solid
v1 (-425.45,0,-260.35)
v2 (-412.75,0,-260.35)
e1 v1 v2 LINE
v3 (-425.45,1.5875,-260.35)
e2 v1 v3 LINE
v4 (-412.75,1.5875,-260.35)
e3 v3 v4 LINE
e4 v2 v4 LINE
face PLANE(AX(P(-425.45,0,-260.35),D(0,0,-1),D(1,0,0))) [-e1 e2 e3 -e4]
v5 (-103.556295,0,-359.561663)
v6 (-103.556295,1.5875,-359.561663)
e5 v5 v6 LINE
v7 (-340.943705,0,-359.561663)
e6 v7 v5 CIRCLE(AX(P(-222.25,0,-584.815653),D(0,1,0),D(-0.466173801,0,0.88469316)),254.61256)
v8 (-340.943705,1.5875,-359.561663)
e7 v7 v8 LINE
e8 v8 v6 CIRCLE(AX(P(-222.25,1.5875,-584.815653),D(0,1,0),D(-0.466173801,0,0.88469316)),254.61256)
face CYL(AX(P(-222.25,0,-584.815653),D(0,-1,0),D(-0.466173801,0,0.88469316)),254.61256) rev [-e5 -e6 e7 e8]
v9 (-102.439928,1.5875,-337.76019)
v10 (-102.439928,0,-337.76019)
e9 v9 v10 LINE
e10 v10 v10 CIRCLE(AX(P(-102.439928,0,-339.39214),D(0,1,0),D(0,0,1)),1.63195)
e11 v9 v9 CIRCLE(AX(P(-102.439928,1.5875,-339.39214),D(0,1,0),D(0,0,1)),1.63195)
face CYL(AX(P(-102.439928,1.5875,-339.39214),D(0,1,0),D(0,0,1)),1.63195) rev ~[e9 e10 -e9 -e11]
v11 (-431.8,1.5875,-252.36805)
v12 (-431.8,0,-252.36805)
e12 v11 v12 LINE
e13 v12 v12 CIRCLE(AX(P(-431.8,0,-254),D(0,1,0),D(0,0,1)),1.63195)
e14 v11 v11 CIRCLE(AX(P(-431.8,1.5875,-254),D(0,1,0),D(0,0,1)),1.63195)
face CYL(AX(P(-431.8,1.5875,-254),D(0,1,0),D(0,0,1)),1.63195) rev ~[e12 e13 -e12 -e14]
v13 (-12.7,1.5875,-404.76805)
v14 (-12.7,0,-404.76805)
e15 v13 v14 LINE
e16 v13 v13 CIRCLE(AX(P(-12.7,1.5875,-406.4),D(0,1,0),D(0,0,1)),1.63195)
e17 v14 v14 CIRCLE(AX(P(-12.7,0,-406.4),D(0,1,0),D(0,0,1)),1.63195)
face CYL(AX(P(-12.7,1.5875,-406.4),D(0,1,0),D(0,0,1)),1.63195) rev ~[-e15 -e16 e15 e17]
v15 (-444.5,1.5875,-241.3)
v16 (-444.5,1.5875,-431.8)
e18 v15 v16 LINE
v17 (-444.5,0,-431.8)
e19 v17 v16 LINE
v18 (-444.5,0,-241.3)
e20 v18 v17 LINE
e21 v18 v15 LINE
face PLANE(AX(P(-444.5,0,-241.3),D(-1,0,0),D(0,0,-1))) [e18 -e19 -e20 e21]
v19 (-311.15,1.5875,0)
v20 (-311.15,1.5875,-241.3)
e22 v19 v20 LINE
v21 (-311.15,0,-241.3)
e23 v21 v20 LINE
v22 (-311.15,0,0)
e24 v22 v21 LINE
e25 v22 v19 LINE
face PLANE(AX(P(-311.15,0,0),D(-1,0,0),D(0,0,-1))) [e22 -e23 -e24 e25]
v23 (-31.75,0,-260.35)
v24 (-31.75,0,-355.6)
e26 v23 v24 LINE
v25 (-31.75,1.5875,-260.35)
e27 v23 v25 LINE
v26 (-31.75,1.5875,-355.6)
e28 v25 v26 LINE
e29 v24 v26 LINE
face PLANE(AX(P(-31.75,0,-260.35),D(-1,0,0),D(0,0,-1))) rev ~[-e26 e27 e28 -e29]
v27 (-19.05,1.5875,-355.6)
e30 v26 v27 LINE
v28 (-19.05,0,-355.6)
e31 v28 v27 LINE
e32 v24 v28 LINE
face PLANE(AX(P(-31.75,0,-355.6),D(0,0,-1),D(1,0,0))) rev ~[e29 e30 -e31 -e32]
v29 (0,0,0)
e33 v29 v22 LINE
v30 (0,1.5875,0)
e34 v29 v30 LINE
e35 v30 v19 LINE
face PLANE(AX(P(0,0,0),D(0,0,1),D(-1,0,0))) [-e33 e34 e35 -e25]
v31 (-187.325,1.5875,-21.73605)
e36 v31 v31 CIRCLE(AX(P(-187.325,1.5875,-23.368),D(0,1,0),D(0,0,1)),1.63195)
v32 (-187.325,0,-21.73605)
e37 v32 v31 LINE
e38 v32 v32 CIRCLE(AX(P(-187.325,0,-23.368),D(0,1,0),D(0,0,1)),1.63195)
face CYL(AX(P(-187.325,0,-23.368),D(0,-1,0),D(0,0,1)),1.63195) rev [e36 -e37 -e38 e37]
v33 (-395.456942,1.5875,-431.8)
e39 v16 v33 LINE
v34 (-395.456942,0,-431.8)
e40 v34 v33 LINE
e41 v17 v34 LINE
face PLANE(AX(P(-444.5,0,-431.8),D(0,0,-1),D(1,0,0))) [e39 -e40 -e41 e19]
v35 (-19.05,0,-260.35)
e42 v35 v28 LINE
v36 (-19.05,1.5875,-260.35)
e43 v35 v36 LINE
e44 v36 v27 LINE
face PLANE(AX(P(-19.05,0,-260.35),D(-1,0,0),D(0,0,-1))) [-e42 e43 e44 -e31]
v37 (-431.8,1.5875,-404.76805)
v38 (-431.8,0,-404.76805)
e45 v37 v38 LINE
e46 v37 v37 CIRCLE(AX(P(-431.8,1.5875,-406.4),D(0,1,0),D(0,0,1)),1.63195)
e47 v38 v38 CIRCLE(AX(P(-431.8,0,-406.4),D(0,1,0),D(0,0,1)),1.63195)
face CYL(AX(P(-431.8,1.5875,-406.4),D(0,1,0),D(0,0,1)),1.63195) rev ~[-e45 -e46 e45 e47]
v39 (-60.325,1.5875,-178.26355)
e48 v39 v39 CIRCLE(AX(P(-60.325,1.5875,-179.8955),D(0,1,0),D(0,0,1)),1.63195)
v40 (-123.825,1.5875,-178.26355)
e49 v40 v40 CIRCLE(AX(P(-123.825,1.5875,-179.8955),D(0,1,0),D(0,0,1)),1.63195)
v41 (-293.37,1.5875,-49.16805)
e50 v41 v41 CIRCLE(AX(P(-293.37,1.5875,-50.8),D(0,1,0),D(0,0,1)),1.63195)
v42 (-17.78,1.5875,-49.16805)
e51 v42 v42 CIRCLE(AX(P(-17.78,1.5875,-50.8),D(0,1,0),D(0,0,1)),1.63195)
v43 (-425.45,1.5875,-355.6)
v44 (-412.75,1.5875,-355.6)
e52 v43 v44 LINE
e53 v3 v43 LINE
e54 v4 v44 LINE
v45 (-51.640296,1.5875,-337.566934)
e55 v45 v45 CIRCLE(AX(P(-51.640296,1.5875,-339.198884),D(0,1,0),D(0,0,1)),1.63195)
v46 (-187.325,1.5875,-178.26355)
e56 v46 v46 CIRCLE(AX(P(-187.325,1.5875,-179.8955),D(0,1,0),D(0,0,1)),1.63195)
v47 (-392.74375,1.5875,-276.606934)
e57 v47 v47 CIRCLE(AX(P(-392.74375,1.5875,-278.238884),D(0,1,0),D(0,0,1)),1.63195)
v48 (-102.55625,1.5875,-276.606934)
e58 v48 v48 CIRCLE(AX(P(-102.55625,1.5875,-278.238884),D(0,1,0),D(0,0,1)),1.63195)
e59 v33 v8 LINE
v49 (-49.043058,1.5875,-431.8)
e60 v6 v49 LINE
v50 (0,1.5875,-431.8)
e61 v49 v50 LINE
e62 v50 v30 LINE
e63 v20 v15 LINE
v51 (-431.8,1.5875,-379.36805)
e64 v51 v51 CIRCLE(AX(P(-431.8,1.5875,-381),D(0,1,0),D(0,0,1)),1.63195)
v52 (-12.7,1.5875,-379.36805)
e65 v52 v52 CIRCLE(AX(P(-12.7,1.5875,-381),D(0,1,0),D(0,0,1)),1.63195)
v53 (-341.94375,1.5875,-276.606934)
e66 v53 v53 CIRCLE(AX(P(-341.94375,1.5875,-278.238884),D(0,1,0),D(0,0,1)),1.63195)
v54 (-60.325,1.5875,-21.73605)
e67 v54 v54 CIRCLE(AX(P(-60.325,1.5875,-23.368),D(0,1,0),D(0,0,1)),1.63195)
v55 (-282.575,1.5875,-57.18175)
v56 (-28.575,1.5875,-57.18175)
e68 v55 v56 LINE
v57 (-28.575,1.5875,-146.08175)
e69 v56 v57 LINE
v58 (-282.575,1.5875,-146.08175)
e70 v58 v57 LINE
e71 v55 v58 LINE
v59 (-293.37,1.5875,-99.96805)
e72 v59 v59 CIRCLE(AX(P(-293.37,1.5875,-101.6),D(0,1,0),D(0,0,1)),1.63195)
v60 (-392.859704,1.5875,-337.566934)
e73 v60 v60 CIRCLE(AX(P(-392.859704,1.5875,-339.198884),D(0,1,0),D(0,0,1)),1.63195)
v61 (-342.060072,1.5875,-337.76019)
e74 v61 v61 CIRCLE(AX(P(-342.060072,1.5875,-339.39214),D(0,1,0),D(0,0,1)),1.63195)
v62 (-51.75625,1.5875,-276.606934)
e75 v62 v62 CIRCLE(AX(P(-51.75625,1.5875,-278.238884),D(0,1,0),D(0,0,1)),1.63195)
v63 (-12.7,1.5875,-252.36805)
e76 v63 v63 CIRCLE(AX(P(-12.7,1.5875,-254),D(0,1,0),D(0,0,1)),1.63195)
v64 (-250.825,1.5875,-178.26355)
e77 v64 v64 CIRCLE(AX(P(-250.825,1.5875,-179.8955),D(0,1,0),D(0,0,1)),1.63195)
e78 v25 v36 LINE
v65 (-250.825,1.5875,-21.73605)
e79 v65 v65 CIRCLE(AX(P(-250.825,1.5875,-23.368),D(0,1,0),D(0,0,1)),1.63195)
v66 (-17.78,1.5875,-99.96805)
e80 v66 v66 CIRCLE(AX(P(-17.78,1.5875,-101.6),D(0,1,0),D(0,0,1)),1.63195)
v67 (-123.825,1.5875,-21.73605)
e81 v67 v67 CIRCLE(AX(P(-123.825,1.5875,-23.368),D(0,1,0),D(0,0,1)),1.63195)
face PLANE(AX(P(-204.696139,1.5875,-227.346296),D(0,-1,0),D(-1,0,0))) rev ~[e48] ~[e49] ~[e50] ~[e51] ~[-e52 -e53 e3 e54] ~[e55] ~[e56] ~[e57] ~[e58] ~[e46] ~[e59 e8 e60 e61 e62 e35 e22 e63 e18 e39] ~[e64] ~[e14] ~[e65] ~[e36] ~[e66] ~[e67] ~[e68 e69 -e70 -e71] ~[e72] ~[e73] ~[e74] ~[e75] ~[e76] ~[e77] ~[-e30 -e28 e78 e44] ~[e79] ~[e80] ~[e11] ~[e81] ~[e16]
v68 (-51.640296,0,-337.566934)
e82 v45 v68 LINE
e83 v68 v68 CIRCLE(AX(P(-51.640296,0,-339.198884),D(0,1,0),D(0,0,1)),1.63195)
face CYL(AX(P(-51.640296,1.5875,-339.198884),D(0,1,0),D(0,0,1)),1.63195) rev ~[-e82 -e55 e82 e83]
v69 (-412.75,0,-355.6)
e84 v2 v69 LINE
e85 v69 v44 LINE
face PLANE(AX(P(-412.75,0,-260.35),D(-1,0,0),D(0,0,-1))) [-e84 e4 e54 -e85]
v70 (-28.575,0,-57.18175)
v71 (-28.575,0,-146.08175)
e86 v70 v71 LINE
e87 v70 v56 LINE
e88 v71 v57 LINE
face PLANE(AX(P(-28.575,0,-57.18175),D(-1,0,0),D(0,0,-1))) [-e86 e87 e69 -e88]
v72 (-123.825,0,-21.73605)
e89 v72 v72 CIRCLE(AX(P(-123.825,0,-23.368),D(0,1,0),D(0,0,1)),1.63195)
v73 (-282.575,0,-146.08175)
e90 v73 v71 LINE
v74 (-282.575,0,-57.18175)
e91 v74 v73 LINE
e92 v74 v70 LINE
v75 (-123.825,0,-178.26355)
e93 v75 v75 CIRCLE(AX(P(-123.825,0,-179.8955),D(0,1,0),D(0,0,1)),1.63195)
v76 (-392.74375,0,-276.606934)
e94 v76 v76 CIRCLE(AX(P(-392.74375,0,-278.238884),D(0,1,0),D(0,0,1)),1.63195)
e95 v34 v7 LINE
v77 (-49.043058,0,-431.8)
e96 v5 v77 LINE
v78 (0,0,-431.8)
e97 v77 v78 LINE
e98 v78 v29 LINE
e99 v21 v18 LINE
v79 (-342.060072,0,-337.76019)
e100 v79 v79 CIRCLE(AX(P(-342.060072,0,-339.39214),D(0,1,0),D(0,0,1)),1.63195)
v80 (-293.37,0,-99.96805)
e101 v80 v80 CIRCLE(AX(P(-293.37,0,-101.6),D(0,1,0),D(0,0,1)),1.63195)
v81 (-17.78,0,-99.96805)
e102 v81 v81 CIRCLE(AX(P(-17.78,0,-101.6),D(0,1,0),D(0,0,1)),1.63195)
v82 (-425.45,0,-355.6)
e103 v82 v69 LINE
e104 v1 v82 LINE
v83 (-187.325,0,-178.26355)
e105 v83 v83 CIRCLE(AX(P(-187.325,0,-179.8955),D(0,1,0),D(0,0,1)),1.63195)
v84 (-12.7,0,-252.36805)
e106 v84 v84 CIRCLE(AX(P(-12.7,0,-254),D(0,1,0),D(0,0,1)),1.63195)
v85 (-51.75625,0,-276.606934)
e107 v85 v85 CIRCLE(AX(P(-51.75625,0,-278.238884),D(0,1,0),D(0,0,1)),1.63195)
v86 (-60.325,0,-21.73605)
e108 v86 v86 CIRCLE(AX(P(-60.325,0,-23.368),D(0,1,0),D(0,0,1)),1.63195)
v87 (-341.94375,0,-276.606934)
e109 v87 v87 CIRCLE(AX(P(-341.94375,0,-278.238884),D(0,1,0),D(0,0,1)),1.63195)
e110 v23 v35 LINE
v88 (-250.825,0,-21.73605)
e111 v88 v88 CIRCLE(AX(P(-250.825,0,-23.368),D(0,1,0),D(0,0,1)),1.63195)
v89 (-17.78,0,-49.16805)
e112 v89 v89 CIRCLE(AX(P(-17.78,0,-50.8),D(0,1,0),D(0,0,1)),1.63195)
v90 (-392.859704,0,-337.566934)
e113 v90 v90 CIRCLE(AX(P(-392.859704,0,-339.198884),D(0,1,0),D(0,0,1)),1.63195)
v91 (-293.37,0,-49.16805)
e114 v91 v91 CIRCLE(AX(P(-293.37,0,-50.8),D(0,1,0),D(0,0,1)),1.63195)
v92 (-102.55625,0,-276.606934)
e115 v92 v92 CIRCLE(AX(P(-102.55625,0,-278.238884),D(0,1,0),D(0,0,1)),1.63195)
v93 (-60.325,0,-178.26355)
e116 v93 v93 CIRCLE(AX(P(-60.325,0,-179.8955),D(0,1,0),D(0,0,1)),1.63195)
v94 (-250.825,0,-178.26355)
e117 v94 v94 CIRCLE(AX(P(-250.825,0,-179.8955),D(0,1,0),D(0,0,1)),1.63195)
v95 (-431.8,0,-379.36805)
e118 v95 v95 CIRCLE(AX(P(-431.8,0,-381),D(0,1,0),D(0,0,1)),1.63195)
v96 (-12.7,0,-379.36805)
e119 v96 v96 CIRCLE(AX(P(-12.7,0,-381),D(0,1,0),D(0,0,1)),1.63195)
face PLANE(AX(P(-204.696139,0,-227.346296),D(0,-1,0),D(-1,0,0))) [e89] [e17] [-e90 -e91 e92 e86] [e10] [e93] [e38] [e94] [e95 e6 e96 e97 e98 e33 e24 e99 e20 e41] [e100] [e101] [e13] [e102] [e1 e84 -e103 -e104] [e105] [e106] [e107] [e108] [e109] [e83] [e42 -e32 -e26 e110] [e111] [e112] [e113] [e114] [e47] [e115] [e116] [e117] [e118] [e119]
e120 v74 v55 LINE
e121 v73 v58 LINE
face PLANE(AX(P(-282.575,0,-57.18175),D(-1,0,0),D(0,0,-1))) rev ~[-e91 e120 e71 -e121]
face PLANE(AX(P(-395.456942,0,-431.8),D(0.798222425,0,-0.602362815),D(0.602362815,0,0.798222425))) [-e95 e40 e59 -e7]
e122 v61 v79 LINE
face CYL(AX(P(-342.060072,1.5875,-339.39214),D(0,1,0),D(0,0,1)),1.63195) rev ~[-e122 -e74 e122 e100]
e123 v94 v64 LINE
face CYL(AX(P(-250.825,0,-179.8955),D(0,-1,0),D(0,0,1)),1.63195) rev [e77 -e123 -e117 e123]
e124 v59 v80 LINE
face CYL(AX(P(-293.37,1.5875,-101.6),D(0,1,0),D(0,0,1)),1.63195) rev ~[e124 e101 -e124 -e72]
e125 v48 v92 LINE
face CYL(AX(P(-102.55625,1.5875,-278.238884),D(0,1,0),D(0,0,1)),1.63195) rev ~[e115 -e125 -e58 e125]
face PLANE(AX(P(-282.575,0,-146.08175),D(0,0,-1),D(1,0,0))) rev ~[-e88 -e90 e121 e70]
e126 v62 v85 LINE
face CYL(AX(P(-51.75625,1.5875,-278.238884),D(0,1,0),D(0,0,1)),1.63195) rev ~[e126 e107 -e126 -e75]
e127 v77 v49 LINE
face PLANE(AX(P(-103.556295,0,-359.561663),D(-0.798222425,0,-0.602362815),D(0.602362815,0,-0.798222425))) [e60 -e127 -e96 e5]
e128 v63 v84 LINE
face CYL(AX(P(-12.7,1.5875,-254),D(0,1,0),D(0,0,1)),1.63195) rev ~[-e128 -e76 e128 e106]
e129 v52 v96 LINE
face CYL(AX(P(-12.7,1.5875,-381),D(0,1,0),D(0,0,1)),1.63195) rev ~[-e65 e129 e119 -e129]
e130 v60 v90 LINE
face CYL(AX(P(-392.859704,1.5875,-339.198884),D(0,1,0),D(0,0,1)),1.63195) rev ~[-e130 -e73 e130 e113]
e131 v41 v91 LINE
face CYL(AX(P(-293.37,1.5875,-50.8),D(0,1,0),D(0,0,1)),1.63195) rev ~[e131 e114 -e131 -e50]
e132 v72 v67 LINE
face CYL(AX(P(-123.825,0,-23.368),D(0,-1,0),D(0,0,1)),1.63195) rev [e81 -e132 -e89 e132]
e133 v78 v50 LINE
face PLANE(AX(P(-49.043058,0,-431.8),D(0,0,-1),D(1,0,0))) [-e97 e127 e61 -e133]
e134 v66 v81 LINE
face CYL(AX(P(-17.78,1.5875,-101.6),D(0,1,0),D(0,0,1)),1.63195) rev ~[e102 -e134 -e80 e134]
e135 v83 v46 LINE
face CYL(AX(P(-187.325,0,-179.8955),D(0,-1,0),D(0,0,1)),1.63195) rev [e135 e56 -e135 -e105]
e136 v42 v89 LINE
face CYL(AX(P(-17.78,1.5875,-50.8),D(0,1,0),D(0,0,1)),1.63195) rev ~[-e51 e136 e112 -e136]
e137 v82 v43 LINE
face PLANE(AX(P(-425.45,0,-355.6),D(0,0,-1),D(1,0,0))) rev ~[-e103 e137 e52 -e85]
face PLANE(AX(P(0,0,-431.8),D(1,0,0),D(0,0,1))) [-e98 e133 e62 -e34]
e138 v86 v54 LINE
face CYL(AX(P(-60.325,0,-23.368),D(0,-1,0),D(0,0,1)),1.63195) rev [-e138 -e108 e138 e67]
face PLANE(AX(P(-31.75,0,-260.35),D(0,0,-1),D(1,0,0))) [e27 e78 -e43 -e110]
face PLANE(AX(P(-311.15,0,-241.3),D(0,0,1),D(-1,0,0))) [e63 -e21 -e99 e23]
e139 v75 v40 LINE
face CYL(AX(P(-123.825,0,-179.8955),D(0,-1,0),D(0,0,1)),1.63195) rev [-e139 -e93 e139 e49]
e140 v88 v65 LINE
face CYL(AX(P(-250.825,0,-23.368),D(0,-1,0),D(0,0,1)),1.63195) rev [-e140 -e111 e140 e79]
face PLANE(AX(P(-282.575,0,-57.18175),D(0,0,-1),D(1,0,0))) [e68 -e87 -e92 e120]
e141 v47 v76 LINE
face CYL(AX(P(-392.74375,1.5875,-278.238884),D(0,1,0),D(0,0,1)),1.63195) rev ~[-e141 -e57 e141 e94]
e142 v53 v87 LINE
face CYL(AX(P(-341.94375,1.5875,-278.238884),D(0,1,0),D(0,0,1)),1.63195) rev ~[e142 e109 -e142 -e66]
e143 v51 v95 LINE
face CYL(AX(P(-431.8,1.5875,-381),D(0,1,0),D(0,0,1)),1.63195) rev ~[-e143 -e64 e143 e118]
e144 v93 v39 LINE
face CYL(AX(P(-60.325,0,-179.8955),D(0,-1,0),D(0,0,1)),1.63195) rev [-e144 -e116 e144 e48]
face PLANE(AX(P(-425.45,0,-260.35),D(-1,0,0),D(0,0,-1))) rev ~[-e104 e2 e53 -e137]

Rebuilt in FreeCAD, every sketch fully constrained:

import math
import FreeCAD as App
import Part
import Sketcher
Q = App.Units.Quantity

doc = App.newDocument("Part")
params = doc.addObject("Spreadsheet::Sheet", "Params")
for row, (alias, value) in enumerate([
    ("sketch1_width", "10 in"),
    ("sketch1_height", "17 in"),
    ("sketch1_width2", "0.5 in"),
    ("sketch1_height2", "7.5 in"),
    ("sketch1_height3", "3.5 in"),
    ("pad1_length", "0.0625 in"),
], start=1):
    params.set(f"A{row}", alias)
    params.set(f"B{row}", "=" + value)
    params.setAlias(f"B{row}", alias)

body = doc.addObject("PartDesign::Body", "Body")

sketch1 = body.newObject("Sketcher::SketchObject", "Sketch")
sketch1.AttachmentSupport = (doc.getObject("XZ_Plane"), [""])
sketch1.MapMode = "FlatFace"
sketch1.addGeometry([
    Part.LineSegment(App.Vector(-395.456942, -431.8, 0), App.Vector(-444.5, -431.8, 0)),
    Part.LineSegment(App.Vector(-444.5, -431.8, 0), App.Vector(-444.5, -241.3, 0)),
    Part.LineSegment(App.Vector(-444.5, -241.3, 0), App.Vector(-311.15, -241.3, 0)),
    Part.LineSegment(App.Vector(-311.15, -241.3, 0), App.Vector(-311.15, 0, 0)),
    Part.LineSegment(App.Vector(-311.15, 0, 0), App.Vector(0, 0, 0)),
    Part.LineSegment(App.Vector(0, 0, 0), App.Vector(0, -431.8, 0)),
    Part.LineSegment(App.Vector(0, -431.8, 0), App.Vector(-49.043058, -431.8, 0)),
    Part.LineSegment(App.Vector(-49.043058, -431.8, 0), App.Vector(-103.556295, -359.561663, 0)),
    Part.ArcOfCircle(Part.Circle(App.Vector(-222.25, -584.815653, 0), App.Vector(0, 0, 1), 254.61256), math.radians(62.213785), math.radians(117.786215)),
    Part.LineSegment(App.Vector(-340.943705, -359.561663, 0), App.Vector(-395.456942, -431.8, 0)),
    Part.Circle(App.Vector(-60.325, -23.368, 0), App.Vector(0, 0, 1), 1.63195),
    Part.Circle(App.Vector(-123.825, -23.368, 0), App.Vector(0, 0, 1), 1.63195),
    Part.Circle(App.Vector(-187.325, -23.368, 0), App.Vector(0, 0, 1), 1.63195),
    Part.LineSegment(App.Vector(-282.575, -57.18175, 0), App.Vector(-282.575, -146.08175, 0)),
    Part.LineSegment(App.Vector(-282.575, -146.08175, 0), App.Vector(-28.575, -146.08175, 0)),
    Part.LineSegment(App.Vector(-28.575, -146.08175, 0), App.Vector(-28.575, -57.18175, 0)),
    Part.LineSegment(App.Vector(-28.575, -57.18175, 0), App.Vector(-282.575, -57.18175, 0)),
    Part.Circle(App.Vector(-60.325, -179.8955, 0), App.Vector(0, 0, 1), 1.63195),
    Part.Circle(App.Vector(-123.825, -179.8955, 0), App.Vector(0, 0, 1), 1.63195),
    Part.Circle(App.Vector(-187.325, -179.8955, 0), App.Vector(0, 0, 1), 1.63195),
    Part.Circle(App.Vector(-250.825, -23.368, 0), App.Vector(0, 0, 1), 1.63195),
    Part.Circle(App.Vector(-250.825, -179.8955, 0), App.Vector(0, 0, 1), 1.63195),
    Part.LineSegment(App.Vector(-31.75, -260.35, 0), App.Vector(-31.75, -355.6, 0)),
    Part.LineSegment(App.Vector(-31.75, -355.6, 0), App.Vector(-19.05, -355.6, 0)),
    Part.LineSegment(App.Vector(-19.05, -355.6, 0), App.Vector(-19.05, -260.35, 0)),
    Part.LineSegment(App.Vector(-19.05, -260.35, 0), App.Vector(-31.75, -260.35, 0)),
    Part.LineSegment(App.Vector(-425.45, -260.35, 0), App.Vector(-425.45, -355.6, 0)),
    Part.LineSegment(App.Vector(-425.45, -355.6, 0), App.Vector(-412.75, -355.6, 0)),
    Part.LineSegment(App.Vector(-412.75, -355.6, 0), App.Vector(-412.75, -260.35, 0)),
    Part.LineSegment(App.Vector(-412.75, -260.35, 0), App.Vector(-425.45, -260.35, 0)),
], False)
sketch1.addConstraint([
    Sketcher.Constraint("Coincident", 0, 2, 1, 1),
    Sketcher.Constraint("Coincident", 1, 2, 2, 1),
    Sketcher.Constraint("Coincident", 2, 2, 3, 1),
    Sketcher.Constraint("Coincident", 3, 2, 4, 1),
    Sketcher.Constraint("Coincident", 4, 2, 5, 1),
    Sketcher.Constraint("Coincident", 5, 2, 6, 1),
    Sketcher.Constraint("Coincident", 6, 2, 7, 1),
    Sketcher.Constraint("Coincident", 7, 2, 8, 1),
    Sketcher.Constraint("Coincident", 8, 2, 9, 1),
    Sketcher.Constraint("Coincident", 9, 2, 0, 1),
    Sketcher.Constraint("Coincident", 13, 2, 14, 1),
    Sketcher.Constraint("Coincident", 14, 2, 15, 1),
    Sketcher.Constraint("Coincident", 15, 2, 16, 1),
    Sketcher.Constraint("Coincident", 16, 2, 13, 1),
    Sketcher.Constraint("Coincident", 22, 2, 23, 1),
    Sketcher.Constraint("Coincident", 23, 2, 24, 1),
    Sketcher.Constraint("Coincident", 24, 2, 25, 1),
    Sketcher.Constraint("Coincident", 25, 2, 22, 1),
    Sketcher.Constraint("Coincident", 26, 2, 27, 1),
    Sketcher.Constraint("Coincident", 27, 2, 28, 1),
    Sketcher.Constraint("Coincident", 28, 2, 29, 1),
    Sketcher.Constraint("Coincident", 29, 2, 26, 1),
    Sketcher.Constraint("Horizontal", 0),
    Sketcher.Constraint("Vertical", 1),
    Sketcher.Constraint("Horizontal", 2),
    Sketcher.Constraint("Vertical", 3),
    Sketcher.Constraint("Horizontal", 4),
    Sketcher.Constraint("Vertical", 5),
    Sketcher.Constraint("Horizontal", 6),
    Sketcher.Constraint("Vertical", 13),
    Sketcher.Constraint("Horizontal", 14),
    Sketcher.Constraint("Vertical", 15),
    Sketcher.Constraint("Horizontal", 16),
    Sketcher.Constraint("Vertical", 22),
    Sketcher.Constraint("Horizontal", 23),
    Sketcher.Constraint("Vertical", 24),
    Sketcher.Constraint("Horizontal", 25),
    Sketcher.Constraint("Vertical", 26),
    Sketcher.Constraint("Horizontal", 27),
    Sketcher.Constraint("Vertical", 28),
    Sketcher.Constraint("Horizontal", 29),
    Sketcher.Constraint("Coincident", 4, 2, -1, 1),
    Sketcher.Constraint("Equal", 10, 11),
    Sketcher.Constraint("Equal", 11, 12),
    Sketcher.Constraint("Equal", 12, 17),
    Sketcher.Constraint("Equal", 17, 18),
    Sketcher.Constraint("Equal", 18, 19),
    Sketcher.Constraint("Equal", 19, 20),
    Sketcher.Constraint("Equal", 20, 21),
    Sketcher.Constraint("Horizontal", 10, 3, 11, 3),
    Sketcher.Constraint("Horizontal", 11, 3, 12, 3),
    Sketcher.Constraint("Horizontal", 17, 3, 18, 3),
    Sketcher.Constraint("Horizontal", 18, 3, 19, 3),
    Sketcher.Constraint("Horizontal", 12, 3, 20, 3),
    Sketcher.Constraint("Horizontal", 19, 3, 21, 3),
    Sketcher.Constraint("Horizontal", 0, 2, 5, 2),
    Sketcher.Constraint("Horizontal", 7, 2, 8, 2),
    Sketcher.Constraint("Horizontal", 23, 2, 26, 2),
    Sketcher.Constraint("Horizontal", 25, 2, 28, 2),
    Sketcher.Constraint("Vertical", 10, 3, 17, 3),
    Sketcher.Constraint("Vertical", 11, 3, 18, 3),
    Sketcher.Constraint("Vertical", 12, 3, 19, 3),
    Sketcher.Constraint("Vertical", 20, 3, 21, 3),
    Sketcher.Constraint("Equal", 0, 6),
    Sketcher.Constraint("Equal", 25, 27),
    Sketcher.Constraint("Equal", 7, 9),
    Sketcher.Constraint("DistanceX", 14, 1, 14, 2, Q("10 in")),
    Sketcher.Constraint("DistanceY", 5, 2, 5, 1, Q("17 in")),
    Sketcher.Constraint("DistanceX", 23, 1, 23, 2, Q("0.5 in")),
    Sketcher.Constraint("DistanceY", 1, 1, 1, 2, Q("7.5 in")),
    Sketcher.Constraint("DistanceY", 13, 2, 13, 1, Q("3.5 in")),
    Sketcher.Constraint("DistanceY", 22, 2, -1, 1, Q("14 in")),
    Sketcher.Constraint("DistanceX", 12, 3, 10, 3, Q("5 in")),
    Sketcher.Constraint("DistanceX", 20, 3, 11, 3, Q("5 in")),
    Sketcher.Constraint("DistanceX", 28, 2, 2, 2, Q("4 in")),
    Sketcher.Constraint("Diameter", 10, Q("0.1285 in")),
    Sketcher.Constraint("DistanceX", 2, 1, 2, 2, Q("5.25 in")),
    Sketcher.Constraint("DistanceX", 4, 1, 4, 2, Q("12.25 in")),
    Sketcher.Constraint("DistanceY", 22, 2, 22, 1, Q("3.75 in")),
    Sketcher.Constraint("DistanceX", 11, 3, 10, 3, Q("2.5 in")),
    Sketcher.Constraint("DistanceY", 10, 3, -1, 1, Q("0.92 in")),
    Sketcher.Constraint("DistanceX", 22, 2, -1, 1, Q("1.25 in")),
    Sketcher.Constraint("DistanceX", 13, 2, 21, 3, Q("1.25 in")),
    Sketcher.Constraint("DistanceX", 10, 3, -1, 1, Q("2.375 in")),
    Sketcher.Constraint("Radius", 8, Q("254.61256 mm")),
    Sketcher.Constraint("DistanceY", 17, 3, -1, 1, Q("7.0825 in")),
    Sketcher.Constraint("DistanceX", 0, 2, 0, 1, Q("49.043058 mm")),
    Sketcher.Constraint("DistanceY", 13, 2, -1, 1, Q("146.08175 mm")),
    Sketcher.Constraint("Distance", 7, Q("90.499008 mm")),
    Sketcher.Constraint("DistanceY", 8, 3, -1, 1, Q("584.815653 mm")),
])
sketch1.setExpression("Constraints[66]", "Params.sketch1_width")
sketch1.setExpression("Constraints[67]", "Params.sketch1_height")
sketch1.setExpression("Constraints[68]", "Params.sketch1_width2")
sketch1.setExpression("Constraints[69]", "Params.sketch1_height2")
sketch1.setExpression("Constraints[70]", "Params.sketch1_height3")
pad1 = body.newObject("PartDesign::Pad", "Pad")
pad1.Profile = sketch1
pad1.setExpression("Length", "Params.pad1_length")
pad1.Reversed = True

sketch2 = body.newObject("Sketcher::SketchObject", "Sketch001")
sketch2.AttachmentSupport = (doc.getObject("XZ_Plane"), [""])
sketch2.MapMode = "FlatFace"
sketch2.AttachmentOffset = App.Placement(App.Vector(0, 0, -0.0625 * 25.4), App.Rotation())
sketch2.addGeometry(Part.Circle(App.Vector(-293.37, -101.6, 0), App.Vector(0, 0, 1), 1.63195), False)
sketch2.addConstraint([
    Sketcher.Constraint("DistanceY", 0, 3, -1, 1, Q("4 in")),
    Sketcher.Constraint("Diameter", 0, Q("0.1285 in")),
    Sketcher.Constraint("DistanceX", 0, 3, -1, 1, Q("11.55 in")),
])
pocket1 = body.newObject("PartDesign::Pocket", "Pocket")
pocket1.Profile = sketch2
pocket1.Type = "UpToFirst"
pocket1.Reversed = True

sketch3 = body.newObject("Sketcher::SketchObject", "Sketch002")
sketch3.AttachmentSupport = (doc.getObject("XZ_Plane"), [""])
sketch3.MapMode = "FlatFace"
sketch3.AttachmentOffset = App.Placement(App.Vector(0, 0, -0.0625 * 25.4), App.Rotation())
sketch3.addGeometry(Part.Circle(App.Vector(-293.37, -50.8, 0), App.Vector(0, 0, 1), 1.63195), False)
sketch3.addConstraint([
    Sketcher.Constraint("DistanceY", 0, 3, -1, 1, Q("2 in")),
    Sketcher.Constraint("Diameter", 0, Q("0.1285 in")),
    Sketcher.Constraint("DistanceX", 0, 3, -1, 1, Q("11.55 in")),
])
pocket2 = body.newObject("PartDesign::Pocket", "Pocket001")
pocket2.Profile = sketch3
pocket2.Type = "UpToFirst"
pocket2.Reversed = True

sketch4 = body.newObject("Sketcher::SketchObject", "Sketch003")
sketch4.AttachmentSupport = (doc.getObject("XZ_Plane"), [""])
sketch4.MapMode = "FlatFace"
sketch4.AttachmentOffset = App.Placement(App.Vector(0, 0, -0.0625 * 25.4), App.Rotation())
sketch4.addGeometry(Part.Circle(App.Vector(-17.78, -101.6, 0), App.Vector(0, 0, 1), 1.63195), False)
sketch4.addConstraint([
    Sketcher.Constraint("DistanceY", 0, 3, -1, 1, Q("4 in")),
    Sketcher.Constraint("Diameter", 0, Q("0.1285 in")),
    Sketcher.Constraint("DistanceX", 0, 3, -1, 1, Q("0.7 in")),
])
pocket3 = body.newObject("PartDesign::Pocket", "Pocket002")
pocket3.Profile = sketch4
pocket3.Type = "UpToFirst"
pocket3.Reversed = True

sketch5 = body.newObject("Sketcher::SketchObject", "Sketch004")
sketch5.AttachmentSupport = (doc.getObject("XZ_Plane"), [""])
sketch5.MapMode = "FlatFace"
sketch5.AttachmentOffset = App.Placement(App.Vector(0, 0, -0.0625 * 25.4), App.Rotation())
sketch5.addGeometry(Part.Circle(App.Vector(-17.78, -50.8, 0), App.Vector(0, 0, 1), 1.63195), False)
sketch5.addConstraint([
    Sketcher.Constraint("DistanceY", 0, 3, -1, 1, Q("2 in")),
    Sketcher.Constraint("Diameter", 0, Q("0.1285 in")),
    Sketcher.Constraint("DistanceX", 0, 3, -1, 1, Q("0.7 in")),
])
pocket4 = body.newObject("PartDesign::Pocket", "Pocket003")
pocket4.Profile = sketch5
pocket4.Type = "UpToFirst"
pocket4.Reversed = True

sketch6 = body.newObject("Sketcher::SketchObject", "Sketch005")
sketch6.AttachmentSupport = (doc.getObject("XZ_Plane"), [""])
sketch6.MapMode = "FlatFace"
sketch6.AttachmentOffset = App.Placement(App.Vector(0, 0, -0.0625 * 25.4), App.Rotation())
sketch6.addGeometry(Part.Circle(App.Vector(-102.439928, -339.39214, 0), App.Vector(0, 0, 1), 1.63195), False)
sketch6.addConstraint([
    Sketcher.Constraint("Diameter", 0, Q("0.1285 in")),
    Sketcher.Constraint("DistanceX", 0, 3, -1, 1, Q("102.439928 mm")),
    Sketcher.Constraint("DistanceY", 0, 3, -1, 1, Q("339.39214 mm")),
])
pocket5 = body.newObject("PartDesign::Pocket", "Pocket004")
pocket5.Profile = sketch6
pocket5.Type = "UpToFirst"
pocket5.Reversed = True

sketch7 = body.newObject("Sketcher::SketchObject", "Sketch006")
sketch7.AttachmentSupport = (doc.getObject("XZ_Plane"), [""])
sketch7.MapMode = "FlatFace"
sketch7.AttachmentOffset = App.Placement(App.Vector(0, 0, -0.0625 * 25.4), App.Rotation())
sketch7.addGeometry(Part.Circle(App.Vector(-51.640296, -339.198884, 0), App.Vector(0, 0, 1), 1.63195), False)
sketch7.addConstraint([
    Sketcher.Constraint("Diameter", 0, Q("0.1285 in")),
    Sketcher.Constraint("DistanceX", 0, 3, -1, 1, Q("51.640296 mm")),
    Sketcher.Constraint("DistanceY", 0, 3, -1, 1, Q("339.198884 mm")),
])
pocket6 = body.newObject("PartDesign::Pocket", "Pocket005")
pocket6.Profile = sketch7
pocket6.Type = "UpToFirst"
pocket6.Reversed = True

sketch8 = body.newObject("Sketcher::SketchObject", "Sketch007")
sketch8.AttachmentSupport = (doc.getObject("XZ_Plane"), [""])
sketch8.MapMode = "FlatFace"
sketch8.AttachmentOffset = App.Placement(App.Vector(0, 0, -0.0625 * 25.4), App.Rotation())
sketch8.addGeometry(Part.Circle(App.Vector(-102.55625, -278.238884, 0), App.Vector(0, 0, 1), 1.63195), False)
sketch8.addConstraint([
    Sketcher.Constraint("Diameter", 0, Q("0.1285 in")),
    Sketcher.Constraint("DistanceX", 0, 3, -1, 1, Q("102.55625 mm")),
    Sketcher.Constraint("DistanceY", 0, 3, -1, 1, Q("278.238884 mm")),
])
pocket7 = body.newObject("PartDesign::Pocket", "Pocket006")
pocket7.Profile = sketch8
pocket7.Type = "UpToFirst"
pocket7.Reversed = True

sketch9 = body.newObject("Sketcher::SketchObject", "Sketch008")
sketch9.AttachmentSupport = (doc.getObject("XZ_Plane"), [""])
sketch9.MapMode = "FlatFace"
sketch9.AttachmentOffset = App.Placement(App.Vector(0, 0, -0.0625 * 25.4), App.Rotation())
sketch9.addGeometry(Part.Circle(App.Vector(-51.75625, -278.238884, 0), App.Vector(0, 0, 1), 1.63195), False)
sketch9.addConstraint([
    Sketcher.Constraint("Diameter", 0, Q("0.1285 in")),
    Sketcher.Constraint("DistanceX", 0, 3, -1, 1, Q("51.75625 mm")),
    Sketcher.Constraint("DistanceY", 0, 3, -1, 1, Q("278.238884 mm")),
])
pocket8 = body.newObject("PartDesign::Pocket", "Pocket007")
pocket8.Profile = sketch9
pocket8.Type = "UpToFirst"
pocket8.Reversed = True

sketch10 = body.newObject("Sketcher::SketchObject", "Sketch009")
sketch10.AttachmentSupport = (doc.getObject("XZ_Plane"), [""])
sketch10.MapMode = "FlatFace"
sketch10.AttachmentOffset = App.Placement(App.Vector(0, 0, -0.0625 * 25.4), App.Rotation())
sketch10.addGeometry(Part.Circle(App.Vector(-392.74375, -278.238884, 0), App.Vector(0, 0, 1), 1.63195), False)
sketch10.addConstraint([
    Sketcher.Constraint("Diameter", 0, Q("0.1285 in")),
    Sketcher.Constraint("DistanceX", 0, 3, -1, 1, Q("392.74375 mm")),
    Sketcher.Constraint("DistanceY", 0, 3, -1, 1, Q("278.238884 mm")),
])
pocket9 = body.newObject("PartDesign::Pocket", "Pocket008")
pocket9.Profile = sketch10
pocket9.Type = "UpToFirst"
pocket9.Reversed = True

sketch11 = body.newObject("Sketcher::SketchObject", "Sketch010")
sketch11.AttachmentSupport = (doc.getObject("XZ_Plane"), [""])
sketch11.MapMode = "FlatFace"
sketch11.AttachmentOffset = App.Placement(App.Vector(0, 0, -0.0625 * 25.4), App.Rotation())
sketch11.addGeometry(Part.Circle(App.Vector(-341.94375, -278.238884, 0), App.Vector(0, 0, 1), 1.63195), False)
sketch11.addConstraint([
    Sketcher.Constraint("Diameter", 0, Q("0.1285 in")),
    Sketcher.Constraint("DistanceX", 0, 3, -1, 1, Q("341.94375 mm")),
    Sketcher.Constraint("DistanceY", 0, 3, -1, 1, Q("278.238884 mm")),
])
pocket10 = body.newObject("PartDesign::Pocket", "Pocket009")
pocket10.Profile = sketch11
pocket10.Type = "UpToFirst"
pocket10.Reversed = True

sketch12 = body.newObject("Sketcher::SketchObject", "Sketch011")
sketch12.AttachmentSupport = (doc.getObject("XZ_Plane"), [""])
sketch12.MapMode = "FlatFace"
sketch12.AttachmentOffset = App.Placement(App.Vector(0, 0, -0.0625 * 25.4), App.Rotation())
sketch12.addGeometry(Part.Circle(App.Vector(-392.859704, -339.198884, 0), App.Vector(0, 0, 1), 1.63195), False)
sketch12.addConstraint([
    Sketcher.Constraint("Diameter", 0, Q("0.1285 in")),
    Sketcher.Constraint("DistanceX", 0, 3, -1, 1, Q("392.859704 mm")),
    Sketcher.Constraint("DistanceY", 0, 3, -1, 1, Q("339.198884 mm")),
])
pocket11 = body.newObject("PartDesign::Pocket", "Pocket010")
pocket11.Profile = sketch12
pocket11.Type = "UpToFirst"
pocket11.Reversed = True

sketch13 = body.newObject("Sketcher::SketchObject", "Sketch012")
sketch13.AttachmentSupport = (doc.getObject("XZ_Plane"), [""])
sketch13.MapMode = "FlatFace"
sketch13.AttachmentOffset = App.Placement(App.Vector(0, 0, -0.0625 * 25.4), App.Rotation())
sketch13.addGeometry(Part.Circle(App.Vector(-342.060072, -339.39214, 0), App.Vector(0, 0, 1), 1.63195), False)
sketch13.addConstraint([
    Sketcher.Constraint("Diameter", 0, Q("0.1285 in")),
    Sketcher.Constraint("DistanceX", 0, 3, -1, 1, Q("342.060072 mm")),
    Sketcher.Constraint("DistanceY", 0, 3, -1, 1, Q("339.39214 mm")),
])
pocket12 = body.newObject("PartDesign::Pocket", "Pocket011")
pocket12.Profile = sketch13
pocket12.Type = "UpToFirst"
pocket12.Reversed = True

sketch14 = body.newObject("Sketcher::SketchObject", "Sketch013")
sketch14.AttachmentSupport = (doc.getObject("XZ_Plane"), [""])
sketch14.MapMode = "FlatFace"
sketch14.AttachmentOffset = App.Placement(App.Vector(0, 0, -0.0625 * 25.4), App.Rotation())
sketch14.addGeometry(Part.Circle(App.Vector(-12.7, -406.4, 0), App.Vector(0, 0, 1), 1.63195), False)
sketch14.addConstraint([
    Sketcher.Constraint("DistanceY", 0, 3, -1, 1, Q("16 in")),
    Sketcher.Constraint("Diameter", 0, Q("0.1285 in")),
    Sketcher.Constraint("DistanceX", 0, 3, -1, 1, Q("0.5 in")),
])
pocket13 = body.newObject("PartDesign::Pocket", "Pocket012")
pocket13.Profile = sketch14
pocket13.Type = "UpToFirst"
pocket13.Reversed = True

sketch15 = body.newObject("Sketcher::SketchObject", "Sketch014")
sketch15.AttachmentSupport = (doc.getObject("XZ_Plane"), [""])
sketch15.MapMode = "FlatFace"
sketch15.AttachmentOffset = App.Placement(App.Vector(0, 0, -0.0625 * 25.4), App.Rotation())
sketch15.addGeometry(Part.Circle(App.Vector(-12.7, -381, 0), App.Vector(0, 0, 1), 1.63195), False)
sketch15.addConstraint([
    Sketcher.Constraint("DistanceY", 0, 3, -1, 1, Q("15 in")),
    Sketcher.Constraint("Diameter", 0, Q("0.1285 in")),
    Sketcher.Constraint("DistanceX", 0, 3, -1, 1, Q("0.5 in")),
])
pocket14 = body.newObject("PartDesign::Pocket", "Pocket013")
pocket14.Profile = sketch15
pocket14.Type = "UpToFirst"
pocket14.Reversed = True

sketch16 = body.newObject("Sketcher::SketchObject", "Sketch015")
sketch16.AttachmentSupport = (doc.getObject("XZ_Plane"), [""])
sketch16.MapMode = "FlatFace"
sketch16.AttachmentOffset = App.Placement(App.Vector(0, 0, -0.0625 * 25.4), App.Rotation())
sketch16.addGeometry(Part.Circle(App.Vector(-12.7, -254, 0), App.Vector(0, 0, 1), 1.63195), False)
sketch16.addConstraint([
    Sketcher.Constraint("DistanceY", 0, 3, -1, 1, Q("10 in")),
    Sketcher.Constraint("Diameter", 0, Q("0.1285 in")),
    Sketcher.Constraint("DistanceX", 0, 3, -1, 1, Q("0.5 in")),
])
pocket15 = body.newObject("PartDesign::Pocket", "Pocket014")
pocket15.Profile = sketch16
pocket15.Type = "UpToFirst"
pocket15.Reversed = True

sketch17 = body.newObject("Sketcher::SketchObject", "Sketch016")
sketch17.AttachmentSupport = (doc.getObject("XZ_Plane"), [""])
sketch17.MapMode = "FlatFace"
sketch17.AttachmentOffset = App.Placement(App.Vector(0, 0, -0.0625 * 25.4), App.Rotation())
sketch17.addGeometry(Part.Circle(App.Vector(-431.8, -254, 0), App.Vector(0, 0, 1), 1.63195), False)
sketch17.addConstraint([
    Sketcher.Constraint("DistanceX", 0, 3, -1, 1, Q("17 in")),
    Sketcher.Constraint("DistanceY", 0, 3, -1, 1, Q("10 in")),
    Sketcher.Constraint("Diameter", 0, Q("0.1285 in")),
])
pocket16 = body.newObject("PartDesign::Pocket", "Pocket015")
pocket16.Profile = sketch17
pocket16.Type = "UpToFirst"
pocket16.Reversed = True

sketch18 = body.newObject("Sketcher::SketchObject", "Sketch017")
sketch18.AttachmentSupport = (doc.getObject("XZ_Plane"), [""])
sketch18.MapMode = "FlatFace"
sketch18.AttachmentOffset = App.Placement(App.Vector(0, 0, -0.0625 * 25.4), App.Rotation())
sketch18.addGeometry(Part.Circle(App.Vector(-431.8, -381, 0), App.Vector(0, 0, 1), 1.63195), False)
sketch18.addConstraint([
    Sketcher.Constraint("DistanceX", 0, 3, -1, 1, Q("17 in")),
    Sketcher.Constraint("DistanceY", 0, 3, -1, 1, Q("15 in")),
    Sketcher.Constraint("Diameter", 0, Q("0.1285 in")),
])
pocket17 = body.newObject("PartDesign::Pocket", "Pocket016")
pocket17.Profile = sketch18
pocket17.Type = "UpToFirst"
pocket17.Reversed = True

sketch19 = body.newObject("Sketcher::SketchObject", "Sketch018")
sketch19.AttachmentSupport = (doc.getObject("XZ_Plane"), [""])
sketch19.MapMode = "FlatFace"
sketch19.AttachmentOffset = App.Placement(App.Vector(0, 0, -0.0625 * 25.4), App.Rotation())
sketch19.addGeometry(Part.Circle(App.Vector(-431.8, -406.4, 0), App.Vector(0, 0, 1), 1.63195), False)
sketch19.addConstraint([
    Sketcher.Constraint("DistanceX", 0, 3, -1, 1, Q("17 in")),
    Sketcher.Constraint("DistanceY", 0, 3, -1, 1, Q("16 in")),
    Sketcher.Constraint("Diameter", 0, Q("0.1285 in")),
])
pocket18 = body.newObject("PartDesign::Pocket", "Pocket017")
pocket18.Profile = sketch19
pocket18.Type = "UpToFirst"
pocket18.Reversed = True

doc.recompute()
